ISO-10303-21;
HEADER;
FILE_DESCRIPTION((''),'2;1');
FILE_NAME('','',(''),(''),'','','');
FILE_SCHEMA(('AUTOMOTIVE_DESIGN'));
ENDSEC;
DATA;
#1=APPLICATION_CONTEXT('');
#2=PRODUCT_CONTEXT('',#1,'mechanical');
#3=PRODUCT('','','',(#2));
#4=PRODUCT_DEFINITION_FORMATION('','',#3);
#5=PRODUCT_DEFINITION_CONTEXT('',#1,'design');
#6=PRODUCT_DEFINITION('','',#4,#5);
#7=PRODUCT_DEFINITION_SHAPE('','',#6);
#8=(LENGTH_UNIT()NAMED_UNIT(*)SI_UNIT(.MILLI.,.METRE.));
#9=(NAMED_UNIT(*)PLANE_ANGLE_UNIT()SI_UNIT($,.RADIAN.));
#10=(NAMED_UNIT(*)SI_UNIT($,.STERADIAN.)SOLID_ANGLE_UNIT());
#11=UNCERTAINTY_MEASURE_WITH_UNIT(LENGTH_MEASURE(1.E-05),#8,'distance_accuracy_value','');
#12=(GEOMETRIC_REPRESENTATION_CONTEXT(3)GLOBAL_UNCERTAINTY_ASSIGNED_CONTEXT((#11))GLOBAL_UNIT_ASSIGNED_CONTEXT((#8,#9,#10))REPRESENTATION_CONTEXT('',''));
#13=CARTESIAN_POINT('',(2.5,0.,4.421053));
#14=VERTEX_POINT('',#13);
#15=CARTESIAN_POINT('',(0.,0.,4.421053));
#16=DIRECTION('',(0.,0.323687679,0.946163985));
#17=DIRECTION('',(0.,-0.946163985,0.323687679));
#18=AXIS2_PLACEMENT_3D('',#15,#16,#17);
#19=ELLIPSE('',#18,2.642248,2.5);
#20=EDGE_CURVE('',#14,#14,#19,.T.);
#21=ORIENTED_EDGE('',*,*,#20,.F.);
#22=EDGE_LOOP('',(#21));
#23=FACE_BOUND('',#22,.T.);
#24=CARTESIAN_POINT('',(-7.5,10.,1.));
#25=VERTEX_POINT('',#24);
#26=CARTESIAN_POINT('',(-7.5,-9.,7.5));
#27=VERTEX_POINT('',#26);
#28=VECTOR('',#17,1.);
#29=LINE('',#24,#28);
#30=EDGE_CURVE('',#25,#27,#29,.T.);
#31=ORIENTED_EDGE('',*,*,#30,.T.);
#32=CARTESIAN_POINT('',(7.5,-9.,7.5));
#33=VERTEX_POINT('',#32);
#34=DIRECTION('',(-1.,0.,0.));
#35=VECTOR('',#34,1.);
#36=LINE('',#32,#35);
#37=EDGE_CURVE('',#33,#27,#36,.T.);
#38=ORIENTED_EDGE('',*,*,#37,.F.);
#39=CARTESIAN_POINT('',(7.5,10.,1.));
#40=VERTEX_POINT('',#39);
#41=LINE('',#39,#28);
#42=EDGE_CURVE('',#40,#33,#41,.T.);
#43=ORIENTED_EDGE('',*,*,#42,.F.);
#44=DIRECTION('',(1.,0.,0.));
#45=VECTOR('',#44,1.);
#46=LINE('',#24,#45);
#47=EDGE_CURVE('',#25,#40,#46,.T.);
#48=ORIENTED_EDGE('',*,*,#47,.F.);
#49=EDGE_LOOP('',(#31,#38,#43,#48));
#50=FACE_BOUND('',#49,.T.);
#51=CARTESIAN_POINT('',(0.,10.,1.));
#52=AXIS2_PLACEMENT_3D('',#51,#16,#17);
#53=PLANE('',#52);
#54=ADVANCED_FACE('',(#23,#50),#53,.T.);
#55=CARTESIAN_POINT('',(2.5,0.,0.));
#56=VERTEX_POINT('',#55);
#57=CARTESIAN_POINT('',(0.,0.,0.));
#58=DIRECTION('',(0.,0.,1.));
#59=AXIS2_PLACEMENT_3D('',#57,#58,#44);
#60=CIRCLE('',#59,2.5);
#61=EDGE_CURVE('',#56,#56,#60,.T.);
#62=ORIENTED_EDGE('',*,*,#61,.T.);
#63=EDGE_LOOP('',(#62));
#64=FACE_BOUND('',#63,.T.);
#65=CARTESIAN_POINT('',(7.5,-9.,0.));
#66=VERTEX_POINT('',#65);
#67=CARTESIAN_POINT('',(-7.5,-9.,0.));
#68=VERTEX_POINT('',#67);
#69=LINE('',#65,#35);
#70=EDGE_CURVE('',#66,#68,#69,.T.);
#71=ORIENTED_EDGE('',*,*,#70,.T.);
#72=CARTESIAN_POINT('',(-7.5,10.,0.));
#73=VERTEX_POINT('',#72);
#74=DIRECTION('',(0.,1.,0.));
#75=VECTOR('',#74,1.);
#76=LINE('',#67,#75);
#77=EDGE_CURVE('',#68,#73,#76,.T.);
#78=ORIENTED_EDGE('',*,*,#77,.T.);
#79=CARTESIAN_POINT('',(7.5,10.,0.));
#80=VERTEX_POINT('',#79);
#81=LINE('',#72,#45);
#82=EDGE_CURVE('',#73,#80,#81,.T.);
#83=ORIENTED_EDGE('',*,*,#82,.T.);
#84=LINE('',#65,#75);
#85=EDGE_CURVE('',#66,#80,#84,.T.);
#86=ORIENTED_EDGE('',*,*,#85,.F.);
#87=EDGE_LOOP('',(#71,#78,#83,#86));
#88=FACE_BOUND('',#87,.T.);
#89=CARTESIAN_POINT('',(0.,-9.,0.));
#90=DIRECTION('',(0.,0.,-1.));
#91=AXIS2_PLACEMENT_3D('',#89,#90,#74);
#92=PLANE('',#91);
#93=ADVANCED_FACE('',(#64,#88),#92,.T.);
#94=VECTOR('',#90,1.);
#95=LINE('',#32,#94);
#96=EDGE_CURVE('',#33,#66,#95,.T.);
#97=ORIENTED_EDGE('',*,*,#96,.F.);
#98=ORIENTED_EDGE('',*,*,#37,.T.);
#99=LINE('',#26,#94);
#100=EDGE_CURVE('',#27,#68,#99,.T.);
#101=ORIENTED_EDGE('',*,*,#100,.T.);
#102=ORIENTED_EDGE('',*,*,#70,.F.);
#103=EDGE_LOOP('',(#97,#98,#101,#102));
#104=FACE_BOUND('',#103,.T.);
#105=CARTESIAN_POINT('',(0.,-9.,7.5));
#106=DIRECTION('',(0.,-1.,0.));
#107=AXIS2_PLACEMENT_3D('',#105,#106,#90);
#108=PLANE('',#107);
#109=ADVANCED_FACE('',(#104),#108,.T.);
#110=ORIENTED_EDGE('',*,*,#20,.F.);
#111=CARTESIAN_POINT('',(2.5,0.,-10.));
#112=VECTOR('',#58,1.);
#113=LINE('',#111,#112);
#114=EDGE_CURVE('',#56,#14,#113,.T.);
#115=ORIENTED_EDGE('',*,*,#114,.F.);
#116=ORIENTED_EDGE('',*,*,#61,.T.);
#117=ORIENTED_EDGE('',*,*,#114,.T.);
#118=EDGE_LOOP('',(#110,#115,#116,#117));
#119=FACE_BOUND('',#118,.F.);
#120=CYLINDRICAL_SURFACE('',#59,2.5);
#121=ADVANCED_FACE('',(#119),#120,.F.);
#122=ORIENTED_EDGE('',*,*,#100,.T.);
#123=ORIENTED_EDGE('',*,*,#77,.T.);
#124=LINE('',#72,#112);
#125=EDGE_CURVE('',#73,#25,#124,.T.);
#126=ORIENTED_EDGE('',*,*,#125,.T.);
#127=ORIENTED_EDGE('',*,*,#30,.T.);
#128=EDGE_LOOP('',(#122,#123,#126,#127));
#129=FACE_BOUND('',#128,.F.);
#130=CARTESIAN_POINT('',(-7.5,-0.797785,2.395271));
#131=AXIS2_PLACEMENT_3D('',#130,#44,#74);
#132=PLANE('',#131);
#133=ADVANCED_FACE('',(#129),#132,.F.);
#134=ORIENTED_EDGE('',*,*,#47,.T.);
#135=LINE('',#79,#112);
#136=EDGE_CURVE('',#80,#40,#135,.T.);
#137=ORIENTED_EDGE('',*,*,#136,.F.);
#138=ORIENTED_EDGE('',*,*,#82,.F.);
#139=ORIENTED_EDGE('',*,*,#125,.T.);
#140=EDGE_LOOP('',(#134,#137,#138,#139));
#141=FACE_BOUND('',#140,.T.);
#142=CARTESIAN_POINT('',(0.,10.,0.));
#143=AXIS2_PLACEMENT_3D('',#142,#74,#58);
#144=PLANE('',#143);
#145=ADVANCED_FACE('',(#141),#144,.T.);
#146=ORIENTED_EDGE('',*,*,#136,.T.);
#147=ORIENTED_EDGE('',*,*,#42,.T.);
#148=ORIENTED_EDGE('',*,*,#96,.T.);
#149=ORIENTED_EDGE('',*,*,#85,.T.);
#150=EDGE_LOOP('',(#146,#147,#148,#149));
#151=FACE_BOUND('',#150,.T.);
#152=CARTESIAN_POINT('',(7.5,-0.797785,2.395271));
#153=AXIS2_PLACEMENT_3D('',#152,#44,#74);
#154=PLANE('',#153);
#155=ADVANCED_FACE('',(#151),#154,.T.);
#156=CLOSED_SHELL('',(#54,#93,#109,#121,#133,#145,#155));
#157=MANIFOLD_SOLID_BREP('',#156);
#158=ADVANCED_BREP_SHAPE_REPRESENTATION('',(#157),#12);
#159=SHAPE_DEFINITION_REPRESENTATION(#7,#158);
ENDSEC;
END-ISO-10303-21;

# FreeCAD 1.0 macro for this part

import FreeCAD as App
import Part
import Sketcher

V = App.Vector

doc = App.newDocument("Part")
body = doc.addObject("PartDesign::Body", "Body")

# Sketch on YZ plane
sketch1 = body.newObject("Sketcher::SketchObject", "Sketch")
sketch1.AttachmentSupport = (doc.getObject("YZ_Plane"), [""])
sketch1.MapMode = "FlatFace"
sketch1.addGeometry([
    Part.LineSegment(V(-9, 0, 0), V(10, 0, 0)),
    Part.LineSegment(V(10, 0, 0), V(10, 1, 0)),
    Part.LineSegment(V(10, 1, 0), V(-9, 7.5, 0)),
    Part.LineSegment(V(-9, 7.5, 0), V(-9, 0, 0)),
], False)
sketch1.addConstraint([
    Sketcher.Constraint("Coincident", 0, 2, 1, 1),
    Sketcher.Constraint("Coincident", 1, 2, 2, 1),
    Sketcher.Constraint("Coincident", 2, 2, 3, 1),
    Sketcher.Constraint("Coincident", 3, 2, 0, 1),
    Sketcher.Constraint("Horizontal", 0),
    Sketcher.Constraint("Vertical", 1),
    Sketcher.Constraint("Vertical", 3),
    Sketcher.Constraint("PointOnObject", 0, 2, -1),
    Sketcher.Constraint("DistanceX", 0, 1, 0, 2, 19.0),
    Sketcher.Constraint("DistanceY", 1, 1, 1, 2, 1.0),
    Sketcher.Constraint("DistanceY", 3, 2, 3, 1, 7.5),
    Sketcher.Constraint("DistanceX", -1, 1, 0, 2, 10.0),
])
pad1 = body.newObject("PartDesign::Pad", "Pad")
pad1.Profile = sketch1
pad1.Length = 15
pad1.Midplane = True

# Sketch on XY plane
sketch2 = body.newObject("Sketcher::SketchObject", "Sketch001")
sketch2.AttachmentSupport = (doc.getObject("XY_Plane"), [""])
sketch2.MapMode = "FlatFace"
sketch2.addGeometry(Part.Circle(V(0, 0, 0), V(0, 0, 1), 2.5), False)
sketch2.addConstraint([
    Sketcher.Constraint("Coincident", 0, 3, -1, 1),
    Sketcher.Constraint("Diameter", 0, 5.0),
])
pocket1 = body.newObject("PartDesign::Pocket", "Pocket")
pocket1.Profile = sketch2
pocket1.Length = 20
pocket1.Midplane = True

doc.recompute()
